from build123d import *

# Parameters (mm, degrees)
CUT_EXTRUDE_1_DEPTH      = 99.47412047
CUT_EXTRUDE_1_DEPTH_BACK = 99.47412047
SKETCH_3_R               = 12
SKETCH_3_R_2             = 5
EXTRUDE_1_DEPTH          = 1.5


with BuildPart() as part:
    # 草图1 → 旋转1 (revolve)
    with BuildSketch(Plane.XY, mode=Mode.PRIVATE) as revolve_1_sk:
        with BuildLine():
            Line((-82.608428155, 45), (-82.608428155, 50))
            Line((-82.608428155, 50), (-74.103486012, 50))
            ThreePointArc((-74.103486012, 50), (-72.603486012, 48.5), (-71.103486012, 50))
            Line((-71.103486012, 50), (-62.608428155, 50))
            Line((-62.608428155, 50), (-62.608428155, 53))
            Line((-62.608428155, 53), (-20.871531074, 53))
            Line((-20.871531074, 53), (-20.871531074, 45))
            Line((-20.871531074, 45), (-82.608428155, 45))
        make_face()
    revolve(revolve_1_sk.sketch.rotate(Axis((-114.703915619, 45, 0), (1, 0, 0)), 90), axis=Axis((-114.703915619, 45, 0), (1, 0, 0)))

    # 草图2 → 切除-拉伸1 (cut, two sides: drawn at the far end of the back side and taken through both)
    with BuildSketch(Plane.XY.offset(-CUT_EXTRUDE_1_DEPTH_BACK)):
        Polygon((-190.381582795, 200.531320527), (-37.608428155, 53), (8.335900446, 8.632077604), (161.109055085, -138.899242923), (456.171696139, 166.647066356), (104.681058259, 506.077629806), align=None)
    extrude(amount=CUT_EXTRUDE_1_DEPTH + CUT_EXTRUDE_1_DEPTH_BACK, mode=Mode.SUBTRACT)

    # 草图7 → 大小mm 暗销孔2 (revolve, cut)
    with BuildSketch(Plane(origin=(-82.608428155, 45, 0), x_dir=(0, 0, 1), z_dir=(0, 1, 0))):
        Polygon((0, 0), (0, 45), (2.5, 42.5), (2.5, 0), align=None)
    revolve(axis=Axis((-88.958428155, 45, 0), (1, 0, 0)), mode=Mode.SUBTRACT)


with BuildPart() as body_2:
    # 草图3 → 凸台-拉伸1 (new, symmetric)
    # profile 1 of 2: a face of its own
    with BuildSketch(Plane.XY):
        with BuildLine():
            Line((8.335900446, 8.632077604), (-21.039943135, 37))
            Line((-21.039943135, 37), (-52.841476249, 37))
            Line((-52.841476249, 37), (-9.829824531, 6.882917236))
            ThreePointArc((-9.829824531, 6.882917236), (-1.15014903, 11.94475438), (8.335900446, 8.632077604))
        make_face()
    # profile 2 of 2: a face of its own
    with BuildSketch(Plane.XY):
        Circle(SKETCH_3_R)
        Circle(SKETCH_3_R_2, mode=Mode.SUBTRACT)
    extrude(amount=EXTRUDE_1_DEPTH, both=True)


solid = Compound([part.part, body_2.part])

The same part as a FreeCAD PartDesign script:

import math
import FreeCAD as App
import Part
import Sketcher
from FreeCAD import Vector
Q = App.Units.Quantity

doc = App.newDocument("Part")
body = doc.addObject("PartDesign::Body", "Body")

# Sketch on XY plane
sketch1 = body.newObject("Sketcher::SketchObject", "Sketch")
sketch1.AttachmentSupport = (doc.getObject("XY_Plane"), [""])
sketch1.MapMode = "FlatFace"
sketch1.addGeometry([
    Part.LineSegment(Vector(-82.6, 50, 0), Vector(-82.6, 45, 0)),  # 0
    Part.LineSegment(Vector(-82.6, 45, 0), Vector(-20.9, 45, 0)),  # 1
    Part.LineSegment(Vector(-20.9, 45, 0), Vector(-20.9, 53, 0)),  # 2
    Part.LineSegment(Vector(-20.9, 53, 0), Vector(-62.6, 53, 0)),  # 3
    Part.LineSegment(Vector(-62.6, 53, 0), Vector(-62.6, 50, 0)),  # 4
    Part.LineSegment(Vector(-62.6, 50, 0), Vector(-71.1, 50, 0)),  # 5
    Part.ArcOfCircle(Part.Circle(Vector(-72.6, 50, 0), Vector(0, 0, 1), 1.5), math.radians(180), math.radians(360)),  # 6
    Part.LineSegment(Vector(-74.1, 50, 0), Vector(-82.6, 50, 0)),  # 7
], False)
sketch1.addGeometry(Part.LineSegment(Vector(-82.6, 45, 0), Vector(-20.9, 45, 0)), True)  # axis
sketch1.addConstraint([
    Sketcher.Constraint("Coincident", 0, 2, 1, 1),
    Sketcher.Constraint("Coincident", 1, 2, 2, 1),
    Sketcher.Constraint("Coincident", 2, 2, 3, 1),
    Sketcher.Constraint("Coincident", 3, 2, 4, 1),
    Sketcher.Constraint("Coincident", 4, 2, 5, 1),
    Sketcher.Constraint("Coincident", 5, 2, 6, 2),
    Sketcher.Constraint("Coincident", 6, 1, 7, 1),
    Sketcher.Constraint("Coincident", 7, 2, 0, 1),
    Sketcher.Constraint("Vertical", 0),
    Sketcher.Constraint("Horizontal", 1),
    Sketcher.Constraint("Vertical", 2),
    Sketcher.Constraint("Horizontal", 3),
    Sketcher.Constraint("Vertical", 4),
    Sketcher.Constraint("Horizontal", 5),
    Sketcher.Constraint("Horizontal", 7),
    Sketcher.Constraint("Horizontal", 8),
    Sketcher.Constraint("Coincident", 8, 1, 0, 2),
    Sketcher.Constraint("Horizontal", 6, 3, 4, 2),
    Sketcher.Constraint("Horizontal", 5, 2, 6, 1),
    Sketcher.Constraint("Vertical", 2, 2, 8, 2),
    Sketcher.Constraint("Radius", 6, 1.5),
    Sketcher.Constraint("DistanceY", 0, 2, 0, 1, 5.0),
    Sketcher.Constraint("DistanceY", 2, 1, 2, 2, 8.0),
    Sketcher.Constraint("DistanceY", -1, 1, 6, 3, 50.0),
    Sketcher.Constraint("DistanceX", 0, 2, 3, 2, 20.0),
    Sketcher.Constraint("DistanceX", 1, 1, 1, 2, 61.736897),
    Sketcher.Constraint("DistanceX", 5, 2, 5, 1, 8.495058),
    Sketcher.Constraint("DistanceX", 0, 2, -1, 1, 82.608428),
])
revolution = body.newObject("PartDesign::Revolution", "Revolution")
revolution.Profile = sketch1
revolution.ReferenceAxis = (sketch1, ["Axis0"])
revolution.Angle = 360

# Sketch on XY plane
sketch2 = body.newObject("Sketcher::SketchObject", "Sketch001")
sketch2.AttachmentSupport = (doc.getObject("XY_Plane"), [""])
sketch2.MapMode = "FlatFace"
sketch2.addGeometry([
    Part.LineSegment(Vector(-190, 201, 0), Vector(-38, 53, 0)),  # 0
    Part.LineSegment(Vector(-38, 53, 0), Vector(8, 9, 0)),  # 1
    Part.LineSegment(Vector(8, 9, 0), Vector(161, -139, 0)),  # 2
    Part.LineSegment(Vector(161, -139, 0), Vector(456, 167, 0)),  # 3
    Part.LineSegment(Vector(456, 167, 0), Vector(105, 506, 0)),  # 4
    Part.LineSegment(Vector(105, 506, 0), Vector(-190, 201, 0)),  # 5
], False)
sketch2.addConstraint([
    Sketcher.Constraint("Coincident", 0, 2, 1, 1),
    Sketcher.Constraint("Coincident", 1, 2, 2, 1),
    Sketcher.Constraint("Coincident", 2, 2, 3, 1),
    Sketcher.Constraint("Coincident", 3, 2, 4, 1),
    Sketcher.Constraint("Coincident", 4, 2, 5, 1),
    Sketcher.Constraint("Coincident", 5, 2, 0, 1),
    Sketcher.Constraint("Parallel", 0, 1),
    Sketcher.Constraint("Parallel", 1, 2),
    Sketcher.Constraint("Perpendicular", 2, 3),
    Sketcher.Constraint("Perpendicular", 3, 4),
    Sketcher.Constraint("Perpendicular", 4, 5),
    Sketcher.Constraint("Equal", 0, 2),
    Sketcher.Constraint("Angle", 0, Q("-44 deg")),
    Sketcher.Constraint("DistanceY", -1, 1, 0, 2, 53.0),
    Sketcher.Constraint("DistanceX", -1, 1, 1, 2, 8.3359),
    Sketcher.Constraint("DistanceX", 0, 2, -1, 1, 37.608428),
    Sketcher.Constraint("DistanceX", -1, 1, 4, 2, 104.681058),
    Sketcher.Constraint("DistanceY", -1, 1, 4, 2, 506.07763),
])
pocket1 = body.newObject("PartDesign::Pocket", "Pocket")
pocket1.Profile = sketch2
pocket1.Type = "ThroughAll"
pocket1.Midplane = True

# Sketch on XZ plane
sketch3 = body.newObject("Sketcher::SketchObject", "Sketch002")
sketch3.AttachmentSupport = (doc.getObject("XZ_Plane"), [""])
sketch3.MapMode = "FlatFace"
sketch3.AttachmentOffset = App.Placement(Vector(0, 0, -45), App.Rotation())
sketch3.addGeometry([
    Part.LineSegment(Vector(-37.6, 0, 0), Vector(-82.6, 0, 0)),
    Part.LineSegment(Vector(-82.6, 0, 0), Vector(-82.6, 2.5, 0)),
    Part.LineSegment(Vector(-82.6, 2.5, 0), Vector(-40.1, 2.5, 0)),
    Part.LineSegment(Vector(-40.1, 2.5, 0), Vector(-37.6, 0, 0)),
], False)
sketch3.addConstraint([
    Sketcher.Constraint("Coincident", 0, 2, 1, 1),
    Sketcher.Constraint("Coincident", 1, 2, 2, 1),
    Sketcher.Constraint("Coincident", 2, 2, 3, 1),
    Sketcher.Constraint("Coincident", 3, 2, 0, 1),
    Sketcher.Constraint("Horizontal", 0),
    Sketcher.Constraint("Vertical", 1),
    Sketcher.Constraint("Horizontal", 2),
    Sketcher.Constraint("PointOnObject", 0, 2, -1),
    Sketcher.Constraint("DistanceX", 0, 2, 0, 1, 45.0),
    Sketcher.Constraint("Angle", 3, Q("-45 deg")),
    Sketcher.Constraint("DistanceX", 2, 1, 2, 2, 42.5),
    Sketcher.Constraint("DistanceX", 0, 2, -1, 1, 82.608428),
])
groove = body.newObject("PartDesign::Groove", "Groove")
groove.Profile = sketch3
groove.ReferenceAxis = (sketch3, ["H_Axis"])
groove.Angle = 360
body2 = doc.addObject("PartDesign::Body", "Body001")

# Sketch on XY plane
sketch4 = body2.newObject("Sketcher::SketchObject", "Sketch003")
sketch4.AttachmentSupport = (doc.getObject("XY_Plane001"), [""])
sketch4.MapMode = "FlatFace"
sketch4.addGeometry([
    Part.LineSegment(Vector(8, 9, 0), Vector(-21, 37, 0)),  # 0
    Part.LineSegment(Vector(-21, 37, 0), Vector(-53, 37, 0)),  # 1
    Part.LineSegment(Vector(-53, 37, 0), Vector(-10, 7, 0)),  # 2
    Part.ArcOfCircle(Part.Circle(Vector(0, 0, 0), Vector(0, 0, 1), 12), math.radians(145), math.radians(406)),  # 3
    Part.Circle(Vector(0, 0, 0), Vector(0, 0, 1), 5),  # 4
], False)
sketch4.addConstraint([
    Sketcher.Constraint("Coincident", 0, 2, 1, 1),
    Sketcher.Constraint("Coincident", 1, 2, 2, 1),
    Sketcher.Constraint("Coincident", 2, 2, 3, 1),
    Sketcher.Constraint("Tangent", 3, 2, 0, 1),
    Sketcher.Constraint("Horizontal", 1),
    Sketcher.Constraint("Coincident", 3, 3, -1, 1),
    Sketcher.Constraint("Coincident", 4, 3, -1, 1),
    Sketcher.Constraint("Diameter", 4, 10.0),
    Sketcher.Constraint("Radius", 3, 12.0),
    Sketcher.Constraint("Angle", 0, Q("136 deg")),
    Sketcher.Constraint("Angle", 2, Q("-35 deg")),
    Sketcher.Constraint("DistanceY", -1, 1, 0, 2, 37.0),
    Sketcher.Constraint("Distance", 2, 52.507531),
])
pad1 = body2.newObject("PartDesign::Pad", "Pad")
pad1.Profile = sketch4
pad1.Length = 3
pad1.Midplane = True

doc.recompute()
